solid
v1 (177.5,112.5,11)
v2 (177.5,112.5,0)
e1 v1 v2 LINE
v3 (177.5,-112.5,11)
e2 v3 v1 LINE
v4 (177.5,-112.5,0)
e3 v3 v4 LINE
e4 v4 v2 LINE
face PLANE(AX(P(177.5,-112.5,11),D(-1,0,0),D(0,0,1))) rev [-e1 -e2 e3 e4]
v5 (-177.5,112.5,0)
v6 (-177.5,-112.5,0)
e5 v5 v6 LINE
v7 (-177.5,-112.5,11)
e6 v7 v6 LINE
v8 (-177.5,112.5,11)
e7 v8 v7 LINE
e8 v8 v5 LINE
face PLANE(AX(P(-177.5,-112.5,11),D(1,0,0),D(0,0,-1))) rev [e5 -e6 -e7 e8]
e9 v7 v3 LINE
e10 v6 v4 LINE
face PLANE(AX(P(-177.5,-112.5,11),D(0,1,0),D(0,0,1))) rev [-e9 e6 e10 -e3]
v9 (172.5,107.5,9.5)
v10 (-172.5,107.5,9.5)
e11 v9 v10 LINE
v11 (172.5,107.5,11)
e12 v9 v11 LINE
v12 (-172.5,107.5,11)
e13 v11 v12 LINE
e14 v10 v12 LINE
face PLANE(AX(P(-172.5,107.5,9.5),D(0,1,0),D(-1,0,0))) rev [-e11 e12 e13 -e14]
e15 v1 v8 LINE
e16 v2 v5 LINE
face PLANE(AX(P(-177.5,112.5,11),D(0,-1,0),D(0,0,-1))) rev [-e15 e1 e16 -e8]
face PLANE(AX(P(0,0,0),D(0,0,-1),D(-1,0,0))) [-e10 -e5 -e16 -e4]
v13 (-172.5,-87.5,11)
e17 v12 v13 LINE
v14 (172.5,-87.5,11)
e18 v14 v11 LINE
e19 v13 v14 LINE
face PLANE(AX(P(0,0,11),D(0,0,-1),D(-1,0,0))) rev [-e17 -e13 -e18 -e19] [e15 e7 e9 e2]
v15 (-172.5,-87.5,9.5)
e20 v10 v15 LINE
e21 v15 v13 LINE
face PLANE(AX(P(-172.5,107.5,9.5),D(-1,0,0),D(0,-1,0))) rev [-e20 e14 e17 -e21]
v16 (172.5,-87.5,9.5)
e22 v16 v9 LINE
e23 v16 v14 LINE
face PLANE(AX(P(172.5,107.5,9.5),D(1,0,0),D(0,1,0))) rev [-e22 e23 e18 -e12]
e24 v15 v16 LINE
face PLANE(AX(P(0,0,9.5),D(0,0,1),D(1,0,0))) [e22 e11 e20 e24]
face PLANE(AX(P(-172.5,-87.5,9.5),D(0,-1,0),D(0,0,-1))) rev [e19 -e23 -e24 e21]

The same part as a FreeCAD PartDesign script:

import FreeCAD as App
import Part
import Sketcher
from FreeCAD import Vector
Q = App.Units.Quantity


def add_polygon(sketch, points):
    """Adds a closed chain of lines whose ends are joined by coincident constraints."""
    first, n = sketch.GeometryCount, len(points)
    for a, b in zip(points, points[1:] + points[:1]):
        sketch.addGeometry(Part.LineSegment(App.Vector(*a, 0), App.Vector(*b, 0)), False)
    for i in range(n):
        sketch.addConstraint(Sketcher.Constraint("Coincident", first + i, 2, first + (i + 1) % n, 1))

doc = App.newDocument("Part")
body = doc.addObject("PartDesign::Body", "Body")

# Sketch on XY plane
sketch1 = body.newObject("Sketcher::SketchObject", "Sketch")
sketch1.AttachmentSupport = (doc.getObject("XY_Plane"), [""])
sketch1.MapMode = "FlatFace"
add_polygon(sketch1, [(-177.5, 112.5), (-177.5, -112.5), (177.5, -112.5), (177.5, 112.5)])  # lines 0-3
sketch1.addConstraint(Sketcher.Constraint("Vertical", 0))
sketch1.addConstraint(Sketcher.Constraint("Horizontal", 1))
sketch1.addConstraint(Sketcher.Constraint("Vertical", 2))
sketch1.addConstraint(Sketcher.Constraint("Horizontal", 3))
sketch1.addConstraint(Sketcher.Constraint("Symmetric", 0, 2, 2, 2, -1, 1))
sketch1.addConstraint(Sketcher.Constraint("DistanceX", 1, 1, 1, 2, Q("355 mm")))
sketch1.addConstraint(Sketcher.Constraint("DistanceY", 0, 2, 0, 1, Q("225 mm")))
pad1 = body.newObject("PartDesign::Pad", "Pad")
pad1.Profile = sketch1
pad1.Length = 11

# Sketch on XY plane
sketch2 = body.newObject("Sketcher::SketchObject", "Sketch001")
sketch2.AttachmentSupport = (doc.getObject("XY_Plane"), [""])
sketch2.MapMode = "FlatFace"
sketch2.AttachmentOffset = App.Placement(Vector(0, 0, 11), App.Rotation())
add_polygon(sketch2, [(-172.5, 107.5), (-172.5, -87.5), (172.5, -87.5), (172.5, 107.5)])  # lines 0-3
sketch2.addConstraint(Sketcher.Constraint("Vertical", 0))
sketch2.addConstraint(Sketcher.Constraint("Horizontal", 1))
sketch2.addConstraint(Sketcher.Constraint("Vertical", 2))
sketch2.addConstraint(Sketcher.Constraint("Horizontal", 3))
sketch2.addConstraint(Sketcher.Constraint("DistanceX", 1, 1, 1, 2, Q("345 mm")))
sketch2.addConstraint(Sketcher.Constraint("DistanceY", 0, 2, 0, 1, Q("195 mm")))
sketch2.addConstraint(Sketcher.Constraint("DistanceX", 0, 2, -1, 1, Q("172.5 mm")))
sketch2.addConstraint(Sketcher.Constraint("DistanceY", 0, 2, -1, 1, Q("87.5 mm")))
pocket1 = body.newObject("PartDesign::Pocket", "Pocket")
pocket1.Profile = sketch2
pocket1.Length = 1.5

doc.recompute()
